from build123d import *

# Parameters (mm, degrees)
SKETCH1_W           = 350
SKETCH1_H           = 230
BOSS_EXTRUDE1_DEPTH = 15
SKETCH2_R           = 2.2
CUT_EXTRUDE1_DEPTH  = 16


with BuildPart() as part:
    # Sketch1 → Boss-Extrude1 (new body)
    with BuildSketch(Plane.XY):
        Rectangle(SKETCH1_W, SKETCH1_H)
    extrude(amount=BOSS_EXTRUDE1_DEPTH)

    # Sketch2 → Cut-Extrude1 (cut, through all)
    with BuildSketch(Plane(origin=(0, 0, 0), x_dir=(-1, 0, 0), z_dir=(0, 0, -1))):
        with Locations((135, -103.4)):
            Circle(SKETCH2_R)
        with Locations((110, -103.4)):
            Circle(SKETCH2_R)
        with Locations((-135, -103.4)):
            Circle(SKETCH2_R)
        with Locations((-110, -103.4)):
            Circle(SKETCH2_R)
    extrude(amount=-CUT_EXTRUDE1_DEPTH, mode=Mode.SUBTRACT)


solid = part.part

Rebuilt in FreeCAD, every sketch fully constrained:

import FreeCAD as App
import Part
import Sketcher


def add_polygon(sketch, points):
    """Adds a closed chain of lines whose ends are joined by coincident constraints."""
    first, n = sketch.GeometryCount, len(points)
    for a, b in zip(points, points[1:] + points[:1]):
        sketch.addGeometry(Part.LineSegment(App.Vector(*a, 0), App.Vector(*b, 0)), False)
    for i in range(n):
        sketch.addConstraint(Sketcher.Constraint("Coincident", first + i, 2, first + (i + 1) % n, 1))

doc = App.newDocument("Part")
body = doc.addObject("PartDesign::Body", "Body")

# Sketch on XY plane
sketch1 = body.newObject("Sketcher::SketchObject", "Sketch")
sketch1.AttachmentSupport = (doc.getObject("XY_Plane"), [""])
sketch1.MapMode = "FlatFace"
add_polygon(sketch1, [(-175, 115), (-175, -115), (175, -115), (175, 115)])  # lines 0-3
sketch1.addConstraint([
    Sketcher.Constraint("Vertical", 0),
    Sketcher.Constraint("Horizontal", 1),
    Sketcher.Constraint("Vertical", 2),
    Sketcher.Constraint("Horizontal", 3),
    Sketcher.Constraint("Symmetric", 0, 2, 2, 2, -1, 1),
    Sketcher.Constraint("DistanceX", 1, 1, 1, 2, 350.0),
    Sketcher.Constraint("DistanceY", 0, 2, 0, 1, 230.0),
])
pad1 = body.newObject("PartDesign::Pad", "Pad")
pad1.Profile = sketch1
pad1.Length = 15

# Sketch on XY plane
sketch2 = body.newObject("Sketcher::SketchObject", "Sketch001")
sketch2.AttachmentSupport = (doc.getObject("XY_Plane"), [""])
sketch2.MapMode = "FlatFace"
sketch2.addGeometry([
    Part.Circle(App.Vector(-135, -103.4, 0), App.Vector(0, 0, 1), 2.2),
    Part.Circle(App.Vector(-110, -103.4, 0), App.Vector(0, 0, 1), 2.2),
    Part.Circle(App.Vector(135, -103.4, 0), App.Vector(0, 0, 1), 2.2),
    Part.Circle(App.Vector(110, -103.4, 0), App.Vector(0, 0, 1), 2.2),
], False)
sketch2.addConstraint([
    Sketcher.Constraint("Equal", 0, 1),
    Sketcher.Constraint("Equal", 1, 2),
    Sketcher.Constraint("Equal", 2, 3),
    Sketcher.Constraint("Symmetric", 0, 3, 2, 3, -2),
    Sketcher.Constraint("Symmetric", 1, 3, 3, 3, -2),
    Sketcher.Constraint("Horizontal", 0, 3, 1, 3),
    Sketcher.Constraint("Diameter", 0, 4.4),
    Sketcher.Constraint("DistanceX", 0, 3, -1, 1, 135.0),
    Sketcher.Constraint("DistanceX", 1, 3, -1, 1, 110.0),
    Sketcher.Constraint("DistanceY", 0, 3, -1, 1, 103.4),
])
pocket1 = body.newObject("PartDesign::Pocket", "Pocket")
pocket1.Profile = sketch2
pocket1.Type = "ThroughAll"
pocket1.Reversed = True

doc.recompute()
